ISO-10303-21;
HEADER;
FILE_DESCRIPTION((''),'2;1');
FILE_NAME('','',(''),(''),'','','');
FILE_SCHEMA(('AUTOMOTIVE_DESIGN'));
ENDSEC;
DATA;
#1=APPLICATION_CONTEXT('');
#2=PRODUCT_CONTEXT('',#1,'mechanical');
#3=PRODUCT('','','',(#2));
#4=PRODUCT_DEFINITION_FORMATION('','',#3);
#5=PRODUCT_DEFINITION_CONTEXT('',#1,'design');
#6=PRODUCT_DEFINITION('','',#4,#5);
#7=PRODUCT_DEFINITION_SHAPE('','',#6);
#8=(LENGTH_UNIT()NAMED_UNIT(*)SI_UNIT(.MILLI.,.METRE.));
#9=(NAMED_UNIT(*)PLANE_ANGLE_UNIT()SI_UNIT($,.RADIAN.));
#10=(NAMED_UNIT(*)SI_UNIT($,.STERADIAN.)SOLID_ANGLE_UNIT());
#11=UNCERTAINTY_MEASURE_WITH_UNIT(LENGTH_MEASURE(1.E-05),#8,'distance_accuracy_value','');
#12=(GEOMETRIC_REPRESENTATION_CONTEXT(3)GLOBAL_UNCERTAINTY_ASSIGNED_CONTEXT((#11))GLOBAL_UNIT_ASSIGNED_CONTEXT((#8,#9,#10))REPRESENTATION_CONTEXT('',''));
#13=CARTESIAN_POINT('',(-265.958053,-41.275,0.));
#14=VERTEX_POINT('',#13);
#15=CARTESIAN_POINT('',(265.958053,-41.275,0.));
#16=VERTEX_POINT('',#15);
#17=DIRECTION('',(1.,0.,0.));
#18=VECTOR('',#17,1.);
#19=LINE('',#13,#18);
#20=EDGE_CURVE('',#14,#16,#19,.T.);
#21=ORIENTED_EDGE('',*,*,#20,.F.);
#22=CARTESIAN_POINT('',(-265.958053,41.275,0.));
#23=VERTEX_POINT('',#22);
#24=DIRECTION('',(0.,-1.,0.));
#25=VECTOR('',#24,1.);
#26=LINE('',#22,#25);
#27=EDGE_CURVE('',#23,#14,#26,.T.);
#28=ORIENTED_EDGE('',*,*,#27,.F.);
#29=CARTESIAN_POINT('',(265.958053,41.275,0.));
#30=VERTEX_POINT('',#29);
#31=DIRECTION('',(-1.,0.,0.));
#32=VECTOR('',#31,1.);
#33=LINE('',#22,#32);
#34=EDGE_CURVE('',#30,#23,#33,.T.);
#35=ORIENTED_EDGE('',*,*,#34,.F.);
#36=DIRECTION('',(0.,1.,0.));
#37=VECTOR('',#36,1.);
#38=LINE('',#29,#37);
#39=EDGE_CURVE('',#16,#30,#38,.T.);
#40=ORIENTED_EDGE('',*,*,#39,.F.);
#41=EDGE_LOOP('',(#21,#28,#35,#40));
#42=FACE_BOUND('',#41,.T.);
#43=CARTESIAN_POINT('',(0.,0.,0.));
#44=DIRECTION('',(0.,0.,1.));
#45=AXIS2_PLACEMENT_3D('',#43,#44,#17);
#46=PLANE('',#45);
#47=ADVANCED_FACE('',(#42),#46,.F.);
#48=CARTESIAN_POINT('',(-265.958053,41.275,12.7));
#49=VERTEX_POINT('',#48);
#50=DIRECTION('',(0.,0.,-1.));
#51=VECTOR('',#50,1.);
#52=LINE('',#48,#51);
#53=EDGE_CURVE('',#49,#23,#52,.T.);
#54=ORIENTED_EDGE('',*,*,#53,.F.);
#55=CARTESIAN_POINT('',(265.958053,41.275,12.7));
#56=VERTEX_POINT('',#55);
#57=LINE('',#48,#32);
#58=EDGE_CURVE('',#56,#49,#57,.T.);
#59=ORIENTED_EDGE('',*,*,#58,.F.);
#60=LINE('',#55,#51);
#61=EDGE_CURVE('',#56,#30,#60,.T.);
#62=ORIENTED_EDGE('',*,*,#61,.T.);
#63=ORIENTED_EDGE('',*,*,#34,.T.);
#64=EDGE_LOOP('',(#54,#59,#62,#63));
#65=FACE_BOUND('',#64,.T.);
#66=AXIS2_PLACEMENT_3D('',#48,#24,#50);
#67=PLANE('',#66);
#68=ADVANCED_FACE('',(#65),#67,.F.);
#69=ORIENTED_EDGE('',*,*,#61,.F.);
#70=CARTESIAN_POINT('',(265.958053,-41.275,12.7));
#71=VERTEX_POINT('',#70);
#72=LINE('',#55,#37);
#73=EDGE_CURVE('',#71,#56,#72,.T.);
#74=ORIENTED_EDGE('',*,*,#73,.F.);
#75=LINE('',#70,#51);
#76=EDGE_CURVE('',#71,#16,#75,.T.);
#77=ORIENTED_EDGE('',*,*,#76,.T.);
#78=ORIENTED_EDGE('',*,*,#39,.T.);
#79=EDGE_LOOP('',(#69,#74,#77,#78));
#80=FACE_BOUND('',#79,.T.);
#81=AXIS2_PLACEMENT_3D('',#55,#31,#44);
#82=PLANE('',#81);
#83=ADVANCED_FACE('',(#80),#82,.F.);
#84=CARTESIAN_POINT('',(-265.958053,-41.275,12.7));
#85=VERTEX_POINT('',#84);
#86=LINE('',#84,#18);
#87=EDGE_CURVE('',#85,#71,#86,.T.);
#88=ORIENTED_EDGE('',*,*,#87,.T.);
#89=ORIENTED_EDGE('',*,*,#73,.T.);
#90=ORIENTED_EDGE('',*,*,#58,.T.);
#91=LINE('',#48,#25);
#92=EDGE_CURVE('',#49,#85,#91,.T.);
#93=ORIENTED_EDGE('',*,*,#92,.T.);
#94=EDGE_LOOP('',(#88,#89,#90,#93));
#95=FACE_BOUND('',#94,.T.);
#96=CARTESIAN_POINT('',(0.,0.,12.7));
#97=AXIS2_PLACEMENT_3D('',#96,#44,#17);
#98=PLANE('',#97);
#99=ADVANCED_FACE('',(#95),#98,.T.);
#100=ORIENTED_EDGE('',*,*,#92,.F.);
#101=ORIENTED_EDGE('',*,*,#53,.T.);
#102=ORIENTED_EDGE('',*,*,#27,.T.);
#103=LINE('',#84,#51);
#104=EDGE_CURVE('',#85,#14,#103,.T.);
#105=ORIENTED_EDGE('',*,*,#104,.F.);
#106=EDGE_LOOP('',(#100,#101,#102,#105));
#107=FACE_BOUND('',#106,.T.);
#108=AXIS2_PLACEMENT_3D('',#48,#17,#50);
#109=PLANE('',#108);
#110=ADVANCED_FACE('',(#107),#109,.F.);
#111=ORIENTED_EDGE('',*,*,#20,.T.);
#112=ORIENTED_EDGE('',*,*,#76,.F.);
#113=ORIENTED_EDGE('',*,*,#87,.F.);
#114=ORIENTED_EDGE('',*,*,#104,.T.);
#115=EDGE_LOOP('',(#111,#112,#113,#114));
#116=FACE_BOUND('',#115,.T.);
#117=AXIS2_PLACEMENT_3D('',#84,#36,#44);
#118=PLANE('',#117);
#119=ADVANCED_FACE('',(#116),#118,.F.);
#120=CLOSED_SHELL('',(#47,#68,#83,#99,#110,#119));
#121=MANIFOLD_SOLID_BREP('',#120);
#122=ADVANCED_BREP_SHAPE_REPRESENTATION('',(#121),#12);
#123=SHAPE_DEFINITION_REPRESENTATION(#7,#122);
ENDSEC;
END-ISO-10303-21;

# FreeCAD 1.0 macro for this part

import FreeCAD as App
import Part
import Sketcher

V = App.Vector
Q = App.Units.Quantity

doc = App.newDocument("Part")
body = doc.addObject("PartDesign::Body", "Body")

# Sketch on XY plane
sketch1 = body.newObject("Sketcher::SketchObject", "Sketch")
sketch1.AttachmentSupport = (doc.getObject("XY_Plane"), [""])
sketch1.MapMode = "FlatFace"
sketch1.addGeometry(Part.LineSegment(V(-266, 41, 0), V(-266, -41, 0)), False)
sketch1.addGeometry(Part.LineSegment(V(-266, -41, 0), V(266, -41, 0)), False)
sketch1.addGeometry(Part.LineSegment(V(266, -41, 0), V(266, 41, 0)), False)
sketch1.addGeometry(Part.LineSegment(V(266, 41, 0), V(-266, 41, 0)), False)
sketch1.addConstraint(Sketcher.Constraint("Coincident", 0, 2, 1, 1))
sketch1.addConstraint(Sketcher.Constraint("Coincident", 1, 2, 2, 1))
sketch1.addConstraint(Sketcher.Constraint("Coincident", 2, 2, 3, 1))
sketch1.addConstraint(Sketcher.Constraint("Coincident", 3, 2, 0, 1))
sketch1.addConstraint(Sketcher.Constraint("Vertical", 0))
sketch1.addConstraint(Sketcher.Constraint("Horizontal", 1))
sketch1.addConstraint(Sketcher.Constraint("Vertical", 2))
sketch1.addConstraint(Sketcher.Constraint("Horizontal", 3))
sketch1.addConstraint(Sketcher.Constraint("Symmetric", 0, 2, 2, 2, -1, 1))
sketch1.addConstraint(Sketcher.Constraint("DistanceY", 0, 2, 0, 1, Q("3.25 in")))
sketch1.addConstraint(Sketcher.Constraint("DistanceX", 1, 1, 1, 2, Q("531.916107 mm")))
pad1 = body.newObject("PartDesign::Pad", "Pad")
pad1.Profile = sketch1
pad1.Length = Q("0.5 in")

doc.recompute()
